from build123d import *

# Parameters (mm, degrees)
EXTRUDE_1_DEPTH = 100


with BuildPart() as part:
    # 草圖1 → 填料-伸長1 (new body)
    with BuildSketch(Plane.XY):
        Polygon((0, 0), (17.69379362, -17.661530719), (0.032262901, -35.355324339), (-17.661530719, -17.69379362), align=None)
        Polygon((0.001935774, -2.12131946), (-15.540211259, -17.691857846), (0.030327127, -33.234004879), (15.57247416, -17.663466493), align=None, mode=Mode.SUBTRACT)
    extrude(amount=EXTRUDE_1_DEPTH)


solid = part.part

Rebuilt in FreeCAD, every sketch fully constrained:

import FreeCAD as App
import Part
import Sketcher
from FreeCAD import Vector


def add_polygon(sketch, points):
    """Adds a closed chain of lines whose ends are joined by coincident constraints."""
    first, n = sketch.GeometryCount, len(points)
    for a, b in zip(points, points[1:] + points[:1]):
        sketch.addGeometry(Part.LineSegment(App.Vector(*a, 0), App.Vector(*b, 0)), False)
    for i in range(n):
        sketch.addConstraint(Sketcher.Constraint("Coincident", first + i, 2, first + (i + 1) % n, 1))

doc = App.newDocument("Part")
body = doc.addObject("PartDesign::Body", "Body")

# Sketch on XY plane
sketch1 = doc.addObject("Sketcher::SketchObject", "Sketch")
body.addObject(sketch1)
sketch1.AttachmentSupport = (doc.XY_Plane, [""])
sketch1.MapMode = "FlatFace"
add_polygon(sketch1, [(17.693794, -17.661531), (0, 0), (-17.661531, -17.693794), (0.032263, -35.355324)])  # lines 0-3
add_polygon(sketch1, [(0.001936, -2.121319), (15.572474, -17.663466), (0.030327, -33.234005), (-15.540211, -17.691858)])  # lines 4-7
sketch1.addConstraint(Sketcher.Constraint("Coincident", 0, 2, -1, 1))
sketch1.addConstraint(Sketcher.Constraint("Perpendicular", 0, 1))
sketch1.addConstraint(Sketcher.Constraint("Perpendicular", 1, 2))
sketch1.addConstraint(Sketcher.Constraint("Perpendicular", 2, 3))
sketch1.addConstraint(Sketcher.Constraint("Perpendicular", 3, 4))
sketch1.addConstraint(Sketcher.Constraint("Perpendicular", 4, 5))
sketch1.addConstraint(Sketcher.Constraint("Perpendicular", 5, 6))
sketch1.addConstraint(Sketcher.Constraint("Perpendicular", 6, 7))
sketch1.addConstraint(Sketcher.Constraint("Equal", 0, 1))
sketch1.addConstraint(Sketcher.Constraint("Equal", 4, 5))
sketch1.addConstraint(Sketcher.Constraint("Distance", 0, 25.0))
sketch1.addConstraint(Sketcher.Constraint("Distance", 4, 22.0))
sketch1.addConstraint(Sketcher.Constraint("DistanceX", 1, 2, -1, 1, 17.661531))
sketch1.addConstraint(Sketcher.Constraint("DistanceX", 6, 2, -1, 1, 15.540211))
sketch1.addConstraint(Sketcher.Constraint("DistanceY", 7, 2, -1, 1, 2.121319))
pad1 = doc.addObject("PartDesign::Pad", "Pad")
body.addObject(pad1)
pad1.Profile = sketch1
pad1.Length = 100

doc.recompute()
